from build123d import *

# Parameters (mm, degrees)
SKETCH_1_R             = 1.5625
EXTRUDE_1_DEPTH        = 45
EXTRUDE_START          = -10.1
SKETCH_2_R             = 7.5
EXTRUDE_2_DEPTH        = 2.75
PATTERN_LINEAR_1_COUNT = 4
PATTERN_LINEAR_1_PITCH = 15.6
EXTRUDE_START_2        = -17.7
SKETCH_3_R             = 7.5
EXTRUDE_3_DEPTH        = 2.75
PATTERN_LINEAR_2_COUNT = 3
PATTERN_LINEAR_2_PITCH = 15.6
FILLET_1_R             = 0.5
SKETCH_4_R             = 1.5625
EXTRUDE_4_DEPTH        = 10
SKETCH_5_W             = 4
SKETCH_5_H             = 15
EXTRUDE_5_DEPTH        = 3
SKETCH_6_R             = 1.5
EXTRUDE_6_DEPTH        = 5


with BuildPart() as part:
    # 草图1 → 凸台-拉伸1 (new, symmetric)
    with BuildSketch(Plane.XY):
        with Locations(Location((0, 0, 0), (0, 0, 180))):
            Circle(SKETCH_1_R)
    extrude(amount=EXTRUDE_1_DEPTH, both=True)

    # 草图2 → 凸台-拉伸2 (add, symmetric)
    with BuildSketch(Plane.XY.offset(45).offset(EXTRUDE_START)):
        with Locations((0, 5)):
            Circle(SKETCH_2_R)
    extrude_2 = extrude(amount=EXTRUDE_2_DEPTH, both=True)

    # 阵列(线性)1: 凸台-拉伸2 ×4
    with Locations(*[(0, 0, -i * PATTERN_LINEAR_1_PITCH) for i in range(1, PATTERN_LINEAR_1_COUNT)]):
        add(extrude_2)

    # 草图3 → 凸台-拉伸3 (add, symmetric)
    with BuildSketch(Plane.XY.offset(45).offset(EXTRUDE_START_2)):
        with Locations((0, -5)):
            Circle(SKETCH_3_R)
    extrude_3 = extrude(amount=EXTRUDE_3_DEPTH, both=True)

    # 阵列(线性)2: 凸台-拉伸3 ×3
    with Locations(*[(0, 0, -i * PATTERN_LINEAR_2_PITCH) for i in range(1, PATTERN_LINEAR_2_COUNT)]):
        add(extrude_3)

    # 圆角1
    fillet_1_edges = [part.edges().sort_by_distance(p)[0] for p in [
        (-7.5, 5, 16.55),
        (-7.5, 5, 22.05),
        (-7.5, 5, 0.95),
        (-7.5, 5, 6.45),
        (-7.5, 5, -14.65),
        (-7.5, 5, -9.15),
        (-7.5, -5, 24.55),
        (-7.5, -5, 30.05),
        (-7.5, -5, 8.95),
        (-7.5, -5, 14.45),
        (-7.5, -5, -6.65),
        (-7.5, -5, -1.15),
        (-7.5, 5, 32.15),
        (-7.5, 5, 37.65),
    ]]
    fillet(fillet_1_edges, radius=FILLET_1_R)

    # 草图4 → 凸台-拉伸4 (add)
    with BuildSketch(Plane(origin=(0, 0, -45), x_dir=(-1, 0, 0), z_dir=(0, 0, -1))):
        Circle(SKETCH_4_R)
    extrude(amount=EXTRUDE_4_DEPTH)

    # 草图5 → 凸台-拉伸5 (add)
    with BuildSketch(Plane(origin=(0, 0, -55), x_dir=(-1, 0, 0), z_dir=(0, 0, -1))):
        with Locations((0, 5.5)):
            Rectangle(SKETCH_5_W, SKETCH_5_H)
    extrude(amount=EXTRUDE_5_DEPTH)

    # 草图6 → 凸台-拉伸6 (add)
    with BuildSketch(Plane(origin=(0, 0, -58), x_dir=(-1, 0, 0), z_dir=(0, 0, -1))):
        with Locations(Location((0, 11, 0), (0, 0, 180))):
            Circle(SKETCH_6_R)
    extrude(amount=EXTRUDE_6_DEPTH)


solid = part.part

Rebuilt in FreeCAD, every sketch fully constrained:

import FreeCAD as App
import Part
import Sketcher

V = App.Vector
Q = App.Units.Quantity


def edges_at(feature, points):
    """Names of the edges that pass closest to the given points."""
    edges = feature.Shape.Edges
    near = lambda p: min(range(len(edges)), key=lambda i: edges[i].distToShape(Part.Vertex(*p))[0])
    return sorted({f"Edge{near(p) + 1}" for p in points})

doc = App.newDocument("Part")
params = doc.addObject("Spreadsheet::Sheet", "Params")
for row, (alias, value) in enumerate([
    ("pad1_length", "90 mm"),
    ("sketch2_diameter", "15 mm"),
    ("pad2_length", "5.5 mm"),
    ("linearpattern_pitch", "15.6 mm"),
    ("sketch3_diameter", "15 mm"),
    ("pad3_length", "5.5 mm"),
    ("linearpattern2_pitch", "15.6 mm"),
    ("fillet_radius", "0.5 mm"),
    ("pad4_length", "10 mm"),
    ("sketch5_width", "4 mm"),
    ("sketch5_height", "15 mm"),
    ("pad5_length", "3 mm"),
    ("sketch6_diameter", "3 mm"),
    ("pad6_length", "5 mm"),
], start=1):
    params.set(f"A{row}", alias)
    params.set(f"B{row}", "=" + value)
    params.setAlias(f"B{row}", alias)

body = doc.addObject("PartDesign::Body", "Body")

# Sketch on XY plane
sketch1 = body.newObject("Sketcher::SketchObject", "Sketch")
sketch1.AttachmentSupport = (doc.getObject("XY_Plane"), [""])
sketch1.MapMode = "FlatFace"
sketch1.addGeometry(Part.Circle(V(0, 0, 0), V(0, 0, 1), 1.6), False)
sketch1.addConstraint([
    Sketcher.Constraint("Coincident", 0, 3, -1, 1),
    Sketcher.Constraint("Diameter", 0, Q("3.125 mm")),
])
pad1 = body.newObject("PartDesign::Pad", "Pad")
pad1.Profile = sketch1
pad1.setExpression("Length", "Params.pad1_length")
pad1.Midplane = True

# Sketch on XY plane
sketch2 = body.newObject("Sketcher::SketchObject", "Sketch001")
sketch2.AttachmentSupport = (doc.getObject("XY_Plane"), [""])
sketch2.MapMode = "FlatFace"
sketch2.AttachmentOffset = App.Placement(V(0, 0, 34.9), App.Rotation())
sketch2.addGeometry(Part.Circle(V(0, 5, 0), V(0, 0, 1), 8), False)
sketch2.addConstraint([
    Sketcher.Constraint("PointOnObject", 0, 3, -2),
    Sketcher.Constraint("Diameter", 0, Q("15 mm")),
    Sketcher.Constraint("DistanceY", -1, 1, 0, 3, Q("5 mm")),
])
sketch2.setExpression("Constraints[1]", "Params.sketch2_diameter")
pad2 = body.newObject("PartDesign::Pad", "Pad001")
pad2.Profile = sketch2
pad2.setExpression("Length", "Params.pad2_length")
pad2.Midplane = True
doc.recompute()

linearpattern = body.newObject("PartDesign::LinearPattern", "LinearPattern")
linearpattern.Originals = [pad2]
linearpattern.Direction = (doc.getObject("Z_Axis"), [""])
linearpattern.Mode = "offset"
linearpattern.setExpression("Offset", "Params.linearpattern_pitch")
linearpattern.Occurrences = 4
linearpattern.Reversed = True
body.Tip = linearpattern

# Sketch on XY plane
sketch3 = body.newObject("Sketcher::SketchObject", "Sketch002")
sketch3.AttachmentSupport = (doc.getObject("XY_Plane"), [""])
sketch3.MapMode = "FlatFace"
sketch3.AttachmentOffset = App.Placement(V(0, 0, 27.3), App.Rotation())
sketch3.addGeometry(Part.Circle(V(0, -5, 0), V(0, 0, 1), 8), False)
sketch3.addConstraint([
    Sketcher.Constraint("PointOnObject", 0, 3, -2),
    Sketcher.Constraint("Diameter", 0, Q("15 mm")),
    Sketcher.Constraint("DistanceY", 0, 3, -1, 1, Q("5 mm")),
])
sketch3.setExpression("Constraints[1]", "Params.sketch3_diameter")
pad3 = body.newObject("PartDesign::Pad", "Pad002")
pad3.Profile = sketch3
pad3.setExpression("Length", "Params.pad3_length")
pad3.Midplane = True
doc.recompute()

linearpattern2 = body.newObject("PartDesign::LinearPattern", "LinearPattern001")
linearpattern2.Originals = [pad3]
linearpattern2.Direction = (doc.getObject("Z_Axis"), [""])
linearpattern2.Mode = "offset"
linearpattern2.setExpression("Offset", "Params.linearpattern2_pitch")
linearpattern2.Occurrences = 3
linearpattern2.Reversed = True
body.Tip = linearpattern2
doc.recompute()

fillet = body.newObject("PartDesign::Fillet", "Fillet")
fillet.Base = (linearpattern2, edges_at(linearpattern2, [
    (-7.5, 5, 16.55),
    (-7.5, 5, 22.05),
    (-7.5, 5, 0.95),
    (-7.5, 5, 6.45),
    (-7.5, 5, -14.65),
    (-7.5, 5, -9.15),
    (-7.5, -5, 24.55),
    (-7.5, -5, 30.05),
    (-7.5, -5, 8.95),
    (-7.5, -5, 14.45),
    (-7.5, -5, -6.65),
    (-7.5, -5, -1.15),
    (-7.5, 5, 32.15),
    (-7.5, 5, 37.65),
]))
fillet.setExpression("Radius", "Params.fillet_radius")

# Sketch on XY plane
sketch4 = body.newObject("Sketcher::SketchObject", "Sketch003")
sketch4.AttachmentSupport = (doc.getObject("XY_Plane"), [""])
sketch4.MapMode = "FlatFace"
sketch4.AttachmentOffset = App.Placement(V(0, 0, -45), App.Rotation())
sketch4.addGeometry(Part.Circle(V(0, 0, 0), V(0, 0, 1), 1.6), False)
sketch4.addConstraint([
    Sketcher.Constraint("Coincident", 0, 3, -1, 1),
    Sketcher.Constraint("Diameter", 0, Q("3.125 mm")),
])
pad4 = body.newObject("PartDesign::Pad", "Pad003")
pad4.Profile = sketch4
pad4.setExpression("Length", "Params.pad4_length")
pad4.Reversed = True

# Sketch on XY plane
sketch5 = body.newObject("Sketcher::SketchObject", "Sketch004")
sketch5.AttachmentSupport = (doc.getObject("XY_Plane"), [""])
sketch5.MapMode = "FlatFace"
sketch5.AttachmentOffset = App.Placement(V(0, 0, -55), App.Rotation())
sketch5.addGeometry([
    Part.LineSegment(V(2, 13, 0), V(2, -2, 0)),
    Part.LineSegment(V(2, -2, 0), V(-2, -2, 0)),
    Part.LineSegment(V(-2, -2, 0), V(-2, 13, 0)),
    Part.LineSegment(V(-2, 13, 0), V(2, 13, 0)),
], False)
sketch5.addConstraint([
    Sketcher.Constraint("Coincident", 0, 2, 1, 1),
    Sketcher.Constraint("Coincident", 1, 2, 2, 1),
    Sketcher.Constraint("Coincident", 2, 2, 3, 1),
    Sketcher.Constraint("Coincident", 3, 2, 0, 1),
    Sketcher.Constraint("Vertical", 0),
    Sketcher.Constraint("Horizontal", 1),
    Sketcher.Constraint("Vertical", 2),
    Sketcher.Constraint("Horizontal", 3),
    Sketcher.Constraint("DistanceX", 1, 2, 1, 1, Q("4 mm")),
    Sketcher.Constraint("DistanceY", 0, 2, 0, 1, Q("15 mm")),
    Sketcher.Constraint("DistanceX", -1, 1, 0, 2, Q("2 mm")),
    Sketcher.Constraint("DistanceY", 0, 2, -1, 1, Q("2 mm")),
])
sketch5.setExpression("Constraints[8]", "Params.sketch5_width")
sketch5.setExpression("Constraints[9]", "Params.sketch5_height")
pad5 = body.newObject("PartDesign::Pad", "Pad004")
pad5.Profile = sketch5
pad5.setExpression("Length", "Params.pad5_length")
pad5.Reversed = True

# Sketch on XY plane
sketch6 = body.newObject("Sketcher::SketchObject", "Sketch005")
sketch6.AttachmentSupport = (doc.getObject("XY_Plane"), [""])
sketch6.MapMode = "FlatFace"
sketch6.AttachmentOffset = App.Placement(V(0, 0, -58), App.Rotation())
sketch6.addGeometry(Part.Circle(V(0, 11, 0), V(0, 0, 1), 1.5), False)
sketch6.addConstraint([
    Sketcher.Constraint("PointOnObject", 0, 3, -2),
    Sketcher.Constraint("Diameter", 0, Q("3 mm")),
    Sketcher.Constraint("DistanceY", -1, 1, 0, 3, Q("11 mm")),
])
sketch6.setExpression("Constraints[1]", "Params.sketch6_diameter")
pad6 = body.newObject("PartDesign::Pad", "Pad005")
pad6.Profile = sketch6
pad6.setExpression("Length", "Params.pad6_length")
pad6.Reversed = True

doc.recompute()
